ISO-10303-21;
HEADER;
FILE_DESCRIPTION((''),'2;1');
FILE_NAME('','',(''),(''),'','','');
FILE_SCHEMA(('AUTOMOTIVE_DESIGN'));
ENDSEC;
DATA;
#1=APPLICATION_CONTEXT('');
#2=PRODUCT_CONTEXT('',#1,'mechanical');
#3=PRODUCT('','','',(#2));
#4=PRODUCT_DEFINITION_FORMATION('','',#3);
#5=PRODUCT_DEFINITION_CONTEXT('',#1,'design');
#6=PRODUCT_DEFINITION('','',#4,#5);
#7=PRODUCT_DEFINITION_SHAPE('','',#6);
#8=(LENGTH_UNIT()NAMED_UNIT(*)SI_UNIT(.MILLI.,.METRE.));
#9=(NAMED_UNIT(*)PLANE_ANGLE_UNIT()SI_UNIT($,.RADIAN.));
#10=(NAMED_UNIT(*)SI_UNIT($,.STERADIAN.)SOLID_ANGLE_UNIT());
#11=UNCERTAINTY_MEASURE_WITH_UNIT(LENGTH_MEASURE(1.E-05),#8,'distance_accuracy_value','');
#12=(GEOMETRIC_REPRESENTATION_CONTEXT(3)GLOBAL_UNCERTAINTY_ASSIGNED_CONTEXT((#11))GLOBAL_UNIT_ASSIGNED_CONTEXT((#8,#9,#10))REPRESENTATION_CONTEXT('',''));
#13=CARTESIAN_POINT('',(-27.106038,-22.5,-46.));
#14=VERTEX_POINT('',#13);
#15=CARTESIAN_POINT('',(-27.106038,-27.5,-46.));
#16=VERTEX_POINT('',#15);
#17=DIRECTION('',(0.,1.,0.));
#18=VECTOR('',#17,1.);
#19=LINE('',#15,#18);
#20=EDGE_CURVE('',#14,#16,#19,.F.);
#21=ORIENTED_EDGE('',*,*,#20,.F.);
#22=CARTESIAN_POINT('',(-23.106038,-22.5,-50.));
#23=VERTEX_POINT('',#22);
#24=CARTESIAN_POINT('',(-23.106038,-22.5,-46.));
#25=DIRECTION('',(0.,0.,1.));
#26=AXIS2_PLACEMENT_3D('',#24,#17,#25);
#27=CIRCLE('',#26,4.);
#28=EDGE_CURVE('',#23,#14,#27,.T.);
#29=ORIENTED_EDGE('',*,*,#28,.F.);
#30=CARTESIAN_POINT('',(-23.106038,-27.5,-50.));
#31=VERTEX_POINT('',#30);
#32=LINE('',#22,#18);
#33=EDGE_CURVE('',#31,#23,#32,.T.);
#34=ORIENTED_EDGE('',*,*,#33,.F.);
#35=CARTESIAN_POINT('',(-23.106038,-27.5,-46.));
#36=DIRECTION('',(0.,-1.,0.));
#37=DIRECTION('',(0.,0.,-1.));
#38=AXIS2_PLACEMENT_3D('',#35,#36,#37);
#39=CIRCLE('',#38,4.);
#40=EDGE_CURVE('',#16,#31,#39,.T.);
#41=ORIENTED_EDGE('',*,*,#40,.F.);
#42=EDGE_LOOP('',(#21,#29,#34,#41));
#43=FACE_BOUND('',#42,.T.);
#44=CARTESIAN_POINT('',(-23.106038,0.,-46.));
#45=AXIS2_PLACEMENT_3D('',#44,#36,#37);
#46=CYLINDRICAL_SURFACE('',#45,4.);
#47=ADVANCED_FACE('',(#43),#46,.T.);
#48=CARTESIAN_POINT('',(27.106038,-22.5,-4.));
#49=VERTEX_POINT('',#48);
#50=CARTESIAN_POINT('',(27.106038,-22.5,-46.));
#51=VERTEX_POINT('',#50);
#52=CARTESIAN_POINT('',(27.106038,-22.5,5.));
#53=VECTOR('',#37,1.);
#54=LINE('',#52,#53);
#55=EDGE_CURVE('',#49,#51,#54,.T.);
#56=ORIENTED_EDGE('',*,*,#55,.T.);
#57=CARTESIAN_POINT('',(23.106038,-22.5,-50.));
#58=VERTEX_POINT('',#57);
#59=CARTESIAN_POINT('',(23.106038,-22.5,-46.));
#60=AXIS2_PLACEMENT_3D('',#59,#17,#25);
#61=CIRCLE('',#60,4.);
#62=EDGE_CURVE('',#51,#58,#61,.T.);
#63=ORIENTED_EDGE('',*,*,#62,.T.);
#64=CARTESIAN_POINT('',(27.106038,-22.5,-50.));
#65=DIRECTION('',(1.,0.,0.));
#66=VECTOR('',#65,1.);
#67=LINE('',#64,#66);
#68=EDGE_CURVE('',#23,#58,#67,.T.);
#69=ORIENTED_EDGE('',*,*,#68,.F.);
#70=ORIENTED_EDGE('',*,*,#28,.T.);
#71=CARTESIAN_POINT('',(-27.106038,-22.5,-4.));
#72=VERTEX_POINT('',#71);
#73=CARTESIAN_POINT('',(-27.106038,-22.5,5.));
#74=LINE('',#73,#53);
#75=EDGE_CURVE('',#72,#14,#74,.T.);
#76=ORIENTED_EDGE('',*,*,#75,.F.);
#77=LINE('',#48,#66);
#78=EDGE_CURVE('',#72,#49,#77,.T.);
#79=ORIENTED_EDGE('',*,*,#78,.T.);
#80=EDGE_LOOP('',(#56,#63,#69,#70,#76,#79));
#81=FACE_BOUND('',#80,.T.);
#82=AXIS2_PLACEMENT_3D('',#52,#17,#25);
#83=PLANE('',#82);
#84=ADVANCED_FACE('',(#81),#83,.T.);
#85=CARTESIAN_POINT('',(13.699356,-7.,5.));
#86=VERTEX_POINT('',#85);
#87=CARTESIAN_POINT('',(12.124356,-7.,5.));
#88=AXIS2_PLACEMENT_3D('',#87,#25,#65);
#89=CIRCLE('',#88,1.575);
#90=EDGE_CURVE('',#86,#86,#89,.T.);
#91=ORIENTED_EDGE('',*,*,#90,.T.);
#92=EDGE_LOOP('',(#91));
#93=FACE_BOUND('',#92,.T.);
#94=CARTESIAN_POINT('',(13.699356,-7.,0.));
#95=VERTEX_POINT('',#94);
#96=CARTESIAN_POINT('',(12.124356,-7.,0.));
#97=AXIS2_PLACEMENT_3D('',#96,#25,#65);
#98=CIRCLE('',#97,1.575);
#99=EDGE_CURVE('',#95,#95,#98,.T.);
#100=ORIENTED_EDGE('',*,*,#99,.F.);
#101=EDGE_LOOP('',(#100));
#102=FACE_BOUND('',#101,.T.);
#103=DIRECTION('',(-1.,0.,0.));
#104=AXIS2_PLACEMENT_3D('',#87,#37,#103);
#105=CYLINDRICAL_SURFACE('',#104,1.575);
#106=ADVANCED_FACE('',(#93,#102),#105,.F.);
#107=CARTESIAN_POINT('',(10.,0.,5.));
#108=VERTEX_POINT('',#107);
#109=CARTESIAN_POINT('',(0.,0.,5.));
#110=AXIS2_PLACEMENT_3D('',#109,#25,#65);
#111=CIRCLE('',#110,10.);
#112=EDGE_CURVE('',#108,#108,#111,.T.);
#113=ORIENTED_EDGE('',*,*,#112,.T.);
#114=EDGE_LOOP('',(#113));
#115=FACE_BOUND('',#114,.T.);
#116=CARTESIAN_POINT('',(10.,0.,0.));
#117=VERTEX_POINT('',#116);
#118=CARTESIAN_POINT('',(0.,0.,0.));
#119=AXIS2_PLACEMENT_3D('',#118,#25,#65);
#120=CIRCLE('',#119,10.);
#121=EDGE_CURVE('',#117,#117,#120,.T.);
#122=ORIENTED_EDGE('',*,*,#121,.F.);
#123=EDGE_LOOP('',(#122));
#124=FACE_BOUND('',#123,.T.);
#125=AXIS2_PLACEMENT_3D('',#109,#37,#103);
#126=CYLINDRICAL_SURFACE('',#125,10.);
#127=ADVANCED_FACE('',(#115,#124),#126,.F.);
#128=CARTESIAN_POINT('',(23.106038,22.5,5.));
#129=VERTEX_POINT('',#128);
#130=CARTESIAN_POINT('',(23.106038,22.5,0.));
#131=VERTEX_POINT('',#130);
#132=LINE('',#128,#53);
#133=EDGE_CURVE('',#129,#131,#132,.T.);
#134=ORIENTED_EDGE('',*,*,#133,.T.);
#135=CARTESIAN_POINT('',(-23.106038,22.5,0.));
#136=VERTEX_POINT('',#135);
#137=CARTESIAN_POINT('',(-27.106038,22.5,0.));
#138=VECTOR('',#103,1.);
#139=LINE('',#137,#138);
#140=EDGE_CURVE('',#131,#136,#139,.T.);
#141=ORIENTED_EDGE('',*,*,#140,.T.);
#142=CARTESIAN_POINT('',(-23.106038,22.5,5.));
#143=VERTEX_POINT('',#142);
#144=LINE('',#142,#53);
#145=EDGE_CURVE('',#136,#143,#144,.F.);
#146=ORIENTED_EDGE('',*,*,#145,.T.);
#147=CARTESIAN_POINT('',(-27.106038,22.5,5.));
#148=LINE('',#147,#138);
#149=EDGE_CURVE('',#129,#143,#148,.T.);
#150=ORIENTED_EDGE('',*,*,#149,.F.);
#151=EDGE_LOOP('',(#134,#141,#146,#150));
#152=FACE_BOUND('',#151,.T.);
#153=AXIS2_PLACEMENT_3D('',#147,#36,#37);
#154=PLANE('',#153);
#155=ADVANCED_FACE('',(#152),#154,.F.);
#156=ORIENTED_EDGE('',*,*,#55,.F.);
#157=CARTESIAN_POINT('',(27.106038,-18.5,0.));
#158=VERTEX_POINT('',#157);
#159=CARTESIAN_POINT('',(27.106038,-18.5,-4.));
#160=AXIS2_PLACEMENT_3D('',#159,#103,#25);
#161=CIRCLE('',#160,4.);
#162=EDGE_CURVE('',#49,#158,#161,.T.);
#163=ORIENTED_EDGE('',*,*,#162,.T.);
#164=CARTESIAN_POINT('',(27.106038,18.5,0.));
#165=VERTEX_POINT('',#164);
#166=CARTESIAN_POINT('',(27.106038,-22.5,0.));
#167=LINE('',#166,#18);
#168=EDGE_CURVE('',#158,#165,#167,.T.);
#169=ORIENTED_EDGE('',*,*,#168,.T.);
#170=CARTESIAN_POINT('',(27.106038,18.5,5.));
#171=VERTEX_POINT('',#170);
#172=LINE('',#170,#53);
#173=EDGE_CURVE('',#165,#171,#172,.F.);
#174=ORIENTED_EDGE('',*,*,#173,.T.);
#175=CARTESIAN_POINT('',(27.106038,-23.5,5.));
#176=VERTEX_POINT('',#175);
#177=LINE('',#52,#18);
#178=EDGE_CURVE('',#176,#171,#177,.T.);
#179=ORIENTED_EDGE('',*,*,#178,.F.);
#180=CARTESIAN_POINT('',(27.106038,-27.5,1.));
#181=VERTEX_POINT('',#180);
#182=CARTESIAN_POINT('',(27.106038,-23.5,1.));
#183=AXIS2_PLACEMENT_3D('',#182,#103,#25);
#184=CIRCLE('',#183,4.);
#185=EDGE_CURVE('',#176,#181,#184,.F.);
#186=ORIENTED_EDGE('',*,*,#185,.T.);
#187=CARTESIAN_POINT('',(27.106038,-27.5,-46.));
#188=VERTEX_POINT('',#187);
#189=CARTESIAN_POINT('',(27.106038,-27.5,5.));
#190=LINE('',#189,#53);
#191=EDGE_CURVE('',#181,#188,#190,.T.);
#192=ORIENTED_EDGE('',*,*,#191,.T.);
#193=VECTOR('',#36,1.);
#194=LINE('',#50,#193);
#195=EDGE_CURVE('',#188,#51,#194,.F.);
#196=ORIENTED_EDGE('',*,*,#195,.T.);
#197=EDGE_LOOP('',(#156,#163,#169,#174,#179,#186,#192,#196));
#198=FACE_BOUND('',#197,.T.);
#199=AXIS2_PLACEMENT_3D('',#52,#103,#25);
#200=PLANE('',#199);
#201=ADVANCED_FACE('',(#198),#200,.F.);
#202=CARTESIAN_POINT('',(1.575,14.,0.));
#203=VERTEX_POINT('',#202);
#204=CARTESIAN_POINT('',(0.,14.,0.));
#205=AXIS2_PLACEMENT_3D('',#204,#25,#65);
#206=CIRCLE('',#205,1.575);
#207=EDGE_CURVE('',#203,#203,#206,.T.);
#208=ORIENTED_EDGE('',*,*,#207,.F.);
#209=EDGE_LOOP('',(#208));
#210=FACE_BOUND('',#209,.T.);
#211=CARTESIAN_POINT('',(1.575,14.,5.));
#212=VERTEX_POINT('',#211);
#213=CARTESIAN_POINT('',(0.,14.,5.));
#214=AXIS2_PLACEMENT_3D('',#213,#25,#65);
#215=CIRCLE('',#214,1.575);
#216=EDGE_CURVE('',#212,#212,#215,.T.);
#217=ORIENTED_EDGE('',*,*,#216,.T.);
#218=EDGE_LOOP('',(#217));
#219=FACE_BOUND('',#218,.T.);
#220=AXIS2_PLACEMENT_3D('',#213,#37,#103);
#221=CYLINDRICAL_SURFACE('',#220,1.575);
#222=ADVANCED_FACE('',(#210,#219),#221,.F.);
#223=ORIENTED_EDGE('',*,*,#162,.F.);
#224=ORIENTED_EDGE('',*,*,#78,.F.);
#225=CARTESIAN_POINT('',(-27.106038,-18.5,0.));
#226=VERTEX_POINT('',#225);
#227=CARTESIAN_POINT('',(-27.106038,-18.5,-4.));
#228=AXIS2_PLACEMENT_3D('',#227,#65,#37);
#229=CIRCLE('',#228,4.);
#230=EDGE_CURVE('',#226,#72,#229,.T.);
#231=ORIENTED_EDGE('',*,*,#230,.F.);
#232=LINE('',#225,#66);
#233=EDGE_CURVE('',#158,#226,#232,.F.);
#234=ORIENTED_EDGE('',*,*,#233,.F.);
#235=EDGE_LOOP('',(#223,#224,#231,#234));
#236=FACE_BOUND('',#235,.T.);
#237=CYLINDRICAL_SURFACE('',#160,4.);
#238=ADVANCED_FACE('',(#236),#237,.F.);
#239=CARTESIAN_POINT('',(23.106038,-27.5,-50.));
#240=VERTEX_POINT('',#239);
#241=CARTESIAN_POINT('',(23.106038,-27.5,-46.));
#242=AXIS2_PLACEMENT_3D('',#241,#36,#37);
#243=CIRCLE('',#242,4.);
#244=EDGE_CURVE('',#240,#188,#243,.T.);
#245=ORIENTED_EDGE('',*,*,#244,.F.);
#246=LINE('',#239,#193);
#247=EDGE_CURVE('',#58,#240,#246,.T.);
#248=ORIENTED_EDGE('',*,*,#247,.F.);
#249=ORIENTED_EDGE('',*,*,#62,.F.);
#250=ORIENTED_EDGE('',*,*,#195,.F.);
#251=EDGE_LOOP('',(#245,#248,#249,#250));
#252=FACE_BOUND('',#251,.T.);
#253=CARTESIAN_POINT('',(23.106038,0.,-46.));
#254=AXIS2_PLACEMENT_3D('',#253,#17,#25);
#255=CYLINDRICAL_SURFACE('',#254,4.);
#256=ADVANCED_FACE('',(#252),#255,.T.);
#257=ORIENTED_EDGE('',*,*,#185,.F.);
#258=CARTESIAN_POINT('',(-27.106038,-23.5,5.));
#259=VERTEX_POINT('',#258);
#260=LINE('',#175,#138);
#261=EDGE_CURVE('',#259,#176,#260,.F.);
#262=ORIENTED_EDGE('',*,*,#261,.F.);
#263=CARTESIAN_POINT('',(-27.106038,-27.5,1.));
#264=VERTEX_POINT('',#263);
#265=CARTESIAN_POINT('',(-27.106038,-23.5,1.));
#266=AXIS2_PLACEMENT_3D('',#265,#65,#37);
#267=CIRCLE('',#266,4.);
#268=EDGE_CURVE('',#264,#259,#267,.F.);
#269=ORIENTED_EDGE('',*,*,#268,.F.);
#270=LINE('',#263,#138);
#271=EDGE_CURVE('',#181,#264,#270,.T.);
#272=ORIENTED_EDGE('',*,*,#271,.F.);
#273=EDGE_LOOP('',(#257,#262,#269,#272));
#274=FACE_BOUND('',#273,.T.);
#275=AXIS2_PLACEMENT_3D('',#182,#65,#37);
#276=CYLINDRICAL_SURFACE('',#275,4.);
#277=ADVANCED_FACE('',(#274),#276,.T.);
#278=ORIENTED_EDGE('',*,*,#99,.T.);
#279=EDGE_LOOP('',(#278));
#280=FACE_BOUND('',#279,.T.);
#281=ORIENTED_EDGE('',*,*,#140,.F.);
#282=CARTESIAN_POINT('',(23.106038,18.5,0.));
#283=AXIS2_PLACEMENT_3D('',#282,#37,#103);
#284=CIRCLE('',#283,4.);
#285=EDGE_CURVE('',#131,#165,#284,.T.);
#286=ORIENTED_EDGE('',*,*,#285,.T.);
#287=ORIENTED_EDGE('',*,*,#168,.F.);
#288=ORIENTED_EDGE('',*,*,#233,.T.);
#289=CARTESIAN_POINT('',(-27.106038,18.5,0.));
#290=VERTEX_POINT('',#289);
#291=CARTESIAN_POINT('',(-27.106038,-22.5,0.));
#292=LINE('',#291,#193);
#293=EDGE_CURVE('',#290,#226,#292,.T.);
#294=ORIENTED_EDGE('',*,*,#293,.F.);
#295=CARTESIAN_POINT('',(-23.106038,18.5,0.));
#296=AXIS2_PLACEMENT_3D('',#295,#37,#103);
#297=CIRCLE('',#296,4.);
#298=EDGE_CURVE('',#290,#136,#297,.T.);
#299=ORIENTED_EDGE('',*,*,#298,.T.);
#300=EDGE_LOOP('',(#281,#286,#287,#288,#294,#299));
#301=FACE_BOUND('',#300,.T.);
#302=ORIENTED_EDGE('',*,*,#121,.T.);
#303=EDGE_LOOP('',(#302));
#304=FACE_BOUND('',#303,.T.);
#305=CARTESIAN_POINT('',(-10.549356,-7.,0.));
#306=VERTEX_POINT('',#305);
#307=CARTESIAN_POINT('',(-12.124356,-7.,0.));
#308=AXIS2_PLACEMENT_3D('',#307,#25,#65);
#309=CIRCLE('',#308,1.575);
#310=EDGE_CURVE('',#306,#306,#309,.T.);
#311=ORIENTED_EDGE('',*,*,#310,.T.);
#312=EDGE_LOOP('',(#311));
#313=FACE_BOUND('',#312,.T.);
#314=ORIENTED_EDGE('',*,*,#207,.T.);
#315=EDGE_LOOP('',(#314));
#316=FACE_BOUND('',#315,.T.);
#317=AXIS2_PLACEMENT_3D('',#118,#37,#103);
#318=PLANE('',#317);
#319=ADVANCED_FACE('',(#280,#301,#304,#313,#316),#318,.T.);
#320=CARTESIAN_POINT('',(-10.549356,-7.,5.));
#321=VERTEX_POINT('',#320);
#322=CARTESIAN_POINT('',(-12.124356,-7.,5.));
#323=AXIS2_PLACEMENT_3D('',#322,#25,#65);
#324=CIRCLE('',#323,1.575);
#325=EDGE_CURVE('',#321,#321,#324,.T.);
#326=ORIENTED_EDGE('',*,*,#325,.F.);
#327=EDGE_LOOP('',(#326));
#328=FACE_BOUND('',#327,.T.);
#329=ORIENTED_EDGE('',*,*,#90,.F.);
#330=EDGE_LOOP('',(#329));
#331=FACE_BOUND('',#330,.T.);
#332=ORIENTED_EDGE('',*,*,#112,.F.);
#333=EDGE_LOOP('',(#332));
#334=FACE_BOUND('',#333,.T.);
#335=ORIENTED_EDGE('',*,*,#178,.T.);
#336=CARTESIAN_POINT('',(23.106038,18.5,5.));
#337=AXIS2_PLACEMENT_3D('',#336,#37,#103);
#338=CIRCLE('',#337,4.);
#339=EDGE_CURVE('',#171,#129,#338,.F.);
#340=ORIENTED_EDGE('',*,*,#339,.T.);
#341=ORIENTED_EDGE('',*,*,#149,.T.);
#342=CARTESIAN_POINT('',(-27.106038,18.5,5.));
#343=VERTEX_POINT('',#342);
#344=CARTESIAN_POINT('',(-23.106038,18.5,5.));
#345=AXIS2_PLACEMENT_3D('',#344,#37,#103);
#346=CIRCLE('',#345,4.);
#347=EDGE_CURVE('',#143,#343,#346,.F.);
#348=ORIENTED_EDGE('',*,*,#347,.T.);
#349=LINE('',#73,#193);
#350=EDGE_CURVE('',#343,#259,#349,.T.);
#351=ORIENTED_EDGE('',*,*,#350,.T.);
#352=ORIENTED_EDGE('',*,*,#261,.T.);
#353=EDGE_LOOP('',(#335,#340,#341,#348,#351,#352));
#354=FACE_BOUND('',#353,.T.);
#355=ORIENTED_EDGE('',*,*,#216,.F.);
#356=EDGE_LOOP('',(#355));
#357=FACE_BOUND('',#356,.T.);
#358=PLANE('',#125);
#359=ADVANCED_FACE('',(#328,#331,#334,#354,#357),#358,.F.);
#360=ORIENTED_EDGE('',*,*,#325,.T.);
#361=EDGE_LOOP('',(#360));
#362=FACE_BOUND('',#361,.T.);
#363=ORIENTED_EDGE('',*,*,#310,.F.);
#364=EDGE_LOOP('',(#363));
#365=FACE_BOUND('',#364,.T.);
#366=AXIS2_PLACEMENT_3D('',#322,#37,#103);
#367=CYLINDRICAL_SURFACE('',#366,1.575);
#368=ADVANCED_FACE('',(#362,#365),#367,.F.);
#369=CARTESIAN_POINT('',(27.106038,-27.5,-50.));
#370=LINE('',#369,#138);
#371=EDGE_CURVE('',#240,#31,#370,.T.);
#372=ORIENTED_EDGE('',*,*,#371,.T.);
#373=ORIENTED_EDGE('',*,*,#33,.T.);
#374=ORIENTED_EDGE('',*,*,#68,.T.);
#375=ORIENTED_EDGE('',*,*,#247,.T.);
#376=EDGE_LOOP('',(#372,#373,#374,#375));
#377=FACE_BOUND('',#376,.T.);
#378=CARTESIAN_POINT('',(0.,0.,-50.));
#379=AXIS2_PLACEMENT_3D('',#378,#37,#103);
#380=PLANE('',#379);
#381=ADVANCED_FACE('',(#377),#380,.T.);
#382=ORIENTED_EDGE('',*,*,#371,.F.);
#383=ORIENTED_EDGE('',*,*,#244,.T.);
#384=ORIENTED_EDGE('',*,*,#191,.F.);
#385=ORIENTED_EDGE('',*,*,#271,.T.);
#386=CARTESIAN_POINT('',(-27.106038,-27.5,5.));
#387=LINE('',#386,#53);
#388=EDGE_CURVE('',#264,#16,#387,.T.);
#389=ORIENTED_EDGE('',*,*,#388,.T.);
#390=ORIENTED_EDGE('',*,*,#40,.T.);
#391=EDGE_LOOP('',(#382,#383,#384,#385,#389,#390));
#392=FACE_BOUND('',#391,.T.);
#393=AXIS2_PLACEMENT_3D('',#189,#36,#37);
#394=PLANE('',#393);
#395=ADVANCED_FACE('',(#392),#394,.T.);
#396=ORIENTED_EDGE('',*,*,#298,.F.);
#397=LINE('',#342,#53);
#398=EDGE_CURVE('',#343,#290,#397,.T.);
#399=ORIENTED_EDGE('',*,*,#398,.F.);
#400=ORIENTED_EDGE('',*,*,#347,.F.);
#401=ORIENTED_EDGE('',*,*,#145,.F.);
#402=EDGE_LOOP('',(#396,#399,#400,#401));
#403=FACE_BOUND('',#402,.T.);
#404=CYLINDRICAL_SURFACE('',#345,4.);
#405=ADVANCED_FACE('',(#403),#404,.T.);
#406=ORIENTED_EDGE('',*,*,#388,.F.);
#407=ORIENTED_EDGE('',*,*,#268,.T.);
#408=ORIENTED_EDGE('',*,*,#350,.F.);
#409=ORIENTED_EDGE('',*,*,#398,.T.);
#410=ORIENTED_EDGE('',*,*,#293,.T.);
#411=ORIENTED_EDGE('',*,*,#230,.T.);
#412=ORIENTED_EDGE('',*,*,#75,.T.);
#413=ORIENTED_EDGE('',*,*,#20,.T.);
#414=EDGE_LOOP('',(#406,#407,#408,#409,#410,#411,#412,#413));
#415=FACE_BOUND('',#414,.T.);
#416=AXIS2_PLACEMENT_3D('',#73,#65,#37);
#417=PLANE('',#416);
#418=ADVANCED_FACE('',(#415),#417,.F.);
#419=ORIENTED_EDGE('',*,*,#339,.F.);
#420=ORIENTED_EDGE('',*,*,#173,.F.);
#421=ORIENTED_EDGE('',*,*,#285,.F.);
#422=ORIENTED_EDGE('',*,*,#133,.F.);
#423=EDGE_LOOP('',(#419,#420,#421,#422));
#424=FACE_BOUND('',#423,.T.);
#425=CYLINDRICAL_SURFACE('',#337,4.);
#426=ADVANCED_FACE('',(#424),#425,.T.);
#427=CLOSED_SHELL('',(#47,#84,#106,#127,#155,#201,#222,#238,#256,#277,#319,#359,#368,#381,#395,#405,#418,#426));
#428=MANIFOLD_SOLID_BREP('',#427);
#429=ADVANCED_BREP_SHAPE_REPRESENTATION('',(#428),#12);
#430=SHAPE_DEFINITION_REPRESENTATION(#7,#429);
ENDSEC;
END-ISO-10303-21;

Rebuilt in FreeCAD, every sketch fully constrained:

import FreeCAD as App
import Part
import Sketcher

V = App.Vector
Q = App.Units.Quantity


def edges_at(feature, points):
    """Names of the edges that pass closest to the given points."""
    edges = feature.Shape.Edges
    near = lambda p: min(range(len(edges)), key=lambda i: edges[i].distToShape(Part.Vertex(*p))[0])
    return sorted({f"Edge{near(p) + 1}" for p in points})

doc = App.newDocument("Part")
params = doc.addObject("Spreadsheet::Sheet", "Params")
for row, (alias, value) in enumerate([
    ("sketch1_diameter", "20 mm"),
    ("sketch1_diameter2", "3.15 mm"),
    ("sketch1_height", "45 mm"),
    ("pad1_length", "5 mm"),
    ("sketch2_height", "5 mm"),
    ("pad2_length", "50 mm"),
    ("pad2_length2", "5 mm"),
    ("fillet_radius", "4 mm"),
], start=1):
    params.set(f"A{row}", alias)
    params.set(f"B{row}", "=" + value)
    params.setAlias(f"B{row}", alias)

body = doc.addObject("PartDesign::Body", "Body")

# Sketch on XY plane
sketch1 = body.newObject("Sketcher::SketchObject", "Sketch")
sketch1.AttachmentSupport = (doc.getObject("XY_Plane"), [""])
sketch1.MapMode = "FlatFace"
sketch1.addGeometry(Part.LineSegment(V(-27.1, 22.5, 0), V(-27.1, -22.5, 0)), False)
sketch1.addGeometry(Part.LineSegment(V(-27.1, -22.5, 0), V(27.1, -22.5, 0)), False)
sketch1.addGeometry(Part.LineSegment(V(27.1, -22.5, 0), V(27.1, 22.5, 0)), False)
sketch1.addGeometry(Part.LineSegment(V(27.1, 22.5, 0), V(-27.1, 22.5, 0)), False)
sketch1.addGeometry(Part.Circle(V(-12.1, -7, 0), V(0, 0, 1), 1.6), False)
sketch1.addGeometry(Part.Circle(V(12.1, -7, 0), V(0, 0, 1), 1.6), False)
sketch1.addGeometry(Part.Circle(V(0, 0, 0), V(0, 0, 1), 10), False)
sketch1.addGeometry(Part.Circle(V(0, 14, 0), V(0, 0, 1), 1.6), False)
sketch1.addConstraint(Sketcher.Constraint("Coincident", 0, 2, 1, 1))
sketch1.addConstraint(Sketcher.Constraint("Coincident", 1, 2, 2, 1))
sketch1.addConstraint(Sketcher.Constraint("Coincident", 2, 2, 3, 1))
sketch1.addConstraint(Sketcher.Constraint("Coincident", 3, 2, 0, 1))
sketch1.addConstraint(Sketcher.Constraint("Vertical", 0))
sketch1.addConstraint(Sketcher.Constraint("Horizontal", 1))
sketch1.addConstraint(Sketcher.Constraint("Vertical", 2))
sketch1.addConstraint(Sketcher.Constraint("Horizontal", 3))
sketch1.addConstraint(Sketcher.Constraint("Coincident", 6, 3, -1, 1))
sketch1.addConstraint(Sketcher.Constraint("Equal", 4, 5))
sketch1.addConstraint(Sketcher.Constraint("Equal", 5, 7))
sketch1.addConstraint(Sketcher.Constraint("Symmetric", 0, 2, 2, 2, -1, 1))
sketch1.addConstraint(Sketcher.Constraint("Symmetric", 4, 3, 5, 3, -2))
sketch1.addConstraint(Sketcher.Constraint("PointOnObject", 7, 3, -2))
sketch1.addConstraint(Sketcher.Constraint("Diameter", 6, Q("20 mm")))
sketch1.addConstraint(Sketcher.Constraint("Diameter", 4, Q("3.15 mm")))
sketch1.addConstraint(Sketcher.Constraint("DistanceY", 0, 2, 0, 1, Q("45 mm")))
sketch1.addConstraint(Sketcher.Constraint("DistanceY", 4, 3, -1, 1, Q("7 mm")))
sketch1.addConstraint(Sketcher.Constraint("DistanceY", -1, 1, 7, 3, Q("14 mm")))
sketch1.addConstraint(Sketcher.Constraint("DistanceX", 1, 1, 1, 2, Q("54.212077 mm")))
sketch1.addConstraint(Sketcher.Constraint("DistanceX", 4, 3, 5, 3, Q("24.248711 mm")))
sketch1.setExpression("Constraints[14]", "Params.sketch1_diameter")
sketch1.setExpression("Constraints[15]", "Params.sketch1_diameter2")
sketch1.setExpression("Constraints[16]", "Params.sketch1_height")
pad1 = body.newObject("PartDesign::Pad", "Pad")
pad1.Profile = sketch1
pad1.setExpression("Length", "Params.pad1_length")

# Sketch on XY plane
sketch2 = body.newObject("Sketcher::SketchObject", "Sketch001")
sketch2.AttachmentSupport = (doc.getObject("XY_Plane"), [""])
sketch2.MapMode = "FlatFace"
sketch2.addGeometry(Part.LineSegment(V(27, -22, 0), V(27, -28, 0)), False)
sketch2.addGeometry(Part.LineSegment(V(27, -28, 0), V(-27, -28, 0)), False)
sketch2.addGeometry(Part.LineSegment(V(-27, -28, 0), V(-27, -22, 0)), False)
sketch2.addGeometry(Part.LineSegment(V(-27, -22, 0), V(27, -22, 0)), False)
sketch2.addConstraint(Sketcher.Constraint("Coincident", 0, 2, 1, 1))
sketch2.addConstraint(Sketcher.Constraint("Coincident", 1, 2, 2, 1))
sketch2.addConstraint(Sketcher.Constraint("Coincident", 2, 2, 3, 1))
sketch2.addConstraint(Sketcher.Constraint("Coincident", 3, 2, 0, 1))
sketch2.addConstraint(Sketcher.Constraint("Vertical", 0))
sketch2.addConstraint(Sketcher.Constraint("Horizontal", 1))
sketch2.addConstraint(Sketcher.Constraint("Vertical", 2))
sketch2.addConstraint(Sketcher.Constraint("Horizontal", 3))
sketch2.addConstraint(Sketcher.Constraint("DistanceY", 0, 2, 0, 1, Q("5 mm")))
sketch2.addConstraint(Sketcher.Constraint("DistanceY", 0, 2, -1, 1, Q("27.5 mm")))
sketch2.addConstraint(Sketcher.Constraint("DistanceX", 1, 2, 1, 1, Q("54.212077 mm")))
sketch2.addConstraint(Sketcher.Constraint("DistanceX", -1, 1, 0, 2, Q("27.106038 mm")))
sketch2.setExpression("Constraints[8]", "Params.sketch2_height")
pad2 = body.newObject("PartDesign::Pad", "Pad001")
pad2.Profile = sketch2
pad2.Type = "TwoLengths"
pad2.setExpression("Length", "Params.pad2_length")
pad2.setExpression("Length2", "Params.pad2_length2")
pad2.Reversed = True
doc.recompute()

fillet = body.newObject("PartDesign::Fillet", "Fillet")
fillet.Base = (pad2, edges_at(pad2, [
    (0, -27.5, 5),
    (27.106, -25, -50),
    (-27.106, -25, -50),
    (0, -22.5, 0),
    (-27.106, 22.5, 2.5),
    (27.106, 22.5, 2.5),
]))
fillet.setExpression("Radius", "Params.fillet_radius")

doc.recompute()
